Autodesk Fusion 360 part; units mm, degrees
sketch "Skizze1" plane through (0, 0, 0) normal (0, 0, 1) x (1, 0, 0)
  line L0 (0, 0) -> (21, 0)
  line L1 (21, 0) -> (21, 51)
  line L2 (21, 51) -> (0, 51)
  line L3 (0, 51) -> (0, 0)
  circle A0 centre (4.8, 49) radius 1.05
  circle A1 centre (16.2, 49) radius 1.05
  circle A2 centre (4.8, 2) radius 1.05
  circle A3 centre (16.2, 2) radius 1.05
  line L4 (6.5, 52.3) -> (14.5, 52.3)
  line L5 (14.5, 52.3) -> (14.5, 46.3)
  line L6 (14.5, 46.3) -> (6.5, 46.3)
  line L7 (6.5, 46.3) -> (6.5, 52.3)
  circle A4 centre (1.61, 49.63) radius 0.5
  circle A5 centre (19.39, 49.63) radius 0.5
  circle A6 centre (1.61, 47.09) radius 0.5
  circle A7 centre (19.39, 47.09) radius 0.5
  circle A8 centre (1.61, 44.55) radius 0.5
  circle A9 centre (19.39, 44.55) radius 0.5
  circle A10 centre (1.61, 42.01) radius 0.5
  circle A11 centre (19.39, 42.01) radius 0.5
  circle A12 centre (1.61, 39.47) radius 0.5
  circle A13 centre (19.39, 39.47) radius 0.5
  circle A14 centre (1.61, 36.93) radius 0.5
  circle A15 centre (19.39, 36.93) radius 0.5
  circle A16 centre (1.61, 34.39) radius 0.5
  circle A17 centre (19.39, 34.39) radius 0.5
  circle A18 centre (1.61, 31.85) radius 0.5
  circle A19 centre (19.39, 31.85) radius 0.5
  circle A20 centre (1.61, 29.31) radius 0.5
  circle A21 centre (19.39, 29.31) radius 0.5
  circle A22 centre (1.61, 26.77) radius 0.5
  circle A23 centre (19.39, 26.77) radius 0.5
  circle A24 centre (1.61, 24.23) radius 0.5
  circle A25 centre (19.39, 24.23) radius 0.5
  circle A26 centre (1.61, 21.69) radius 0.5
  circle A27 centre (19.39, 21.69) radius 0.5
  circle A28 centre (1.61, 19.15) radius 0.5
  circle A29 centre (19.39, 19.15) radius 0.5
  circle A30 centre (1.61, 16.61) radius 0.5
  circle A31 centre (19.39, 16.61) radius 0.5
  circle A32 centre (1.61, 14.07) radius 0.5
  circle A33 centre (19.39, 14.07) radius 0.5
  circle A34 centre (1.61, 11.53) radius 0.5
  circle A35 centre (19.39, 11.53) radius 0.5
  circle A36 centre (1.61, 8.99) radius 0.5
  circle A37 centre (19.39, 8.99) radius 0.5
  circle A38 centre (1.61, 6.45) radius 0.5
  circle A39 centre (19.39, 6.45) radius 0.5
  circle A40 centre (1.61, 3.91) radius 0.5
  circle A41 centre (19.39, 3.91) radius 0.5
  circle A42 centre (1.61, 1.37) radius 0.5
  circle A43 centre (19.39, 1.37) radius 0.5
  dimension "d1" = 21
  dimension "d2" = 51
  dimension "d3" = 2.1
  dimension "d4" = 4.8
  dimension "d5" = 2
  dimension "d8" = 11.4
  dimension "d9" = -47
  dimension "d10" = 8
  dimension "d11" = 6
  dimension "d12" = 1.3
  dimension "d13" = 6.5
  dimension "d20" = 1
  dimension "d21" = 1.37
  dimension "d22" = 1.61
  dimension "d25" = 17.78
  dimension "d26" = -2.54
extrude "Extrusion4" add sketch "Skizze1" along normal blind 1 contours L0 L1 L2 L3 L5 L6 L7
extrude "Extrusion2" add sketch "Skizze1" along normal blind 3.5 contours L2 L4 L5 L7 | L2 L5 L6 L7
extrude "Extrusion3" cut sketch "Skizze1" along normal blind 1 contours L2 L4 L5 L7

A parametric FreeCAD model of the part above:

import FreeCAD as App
import Part
import Sketcher
from FreeCAD import Vector
Q = App.Units.Quantity

doc = App.newDocument("Part")
body = doc.addObject("PartDesign::Body", "Body")

# Sketch on XY plane
sketch1 = body.newObject("Sketcher::SketchObject", "Sketch")
sketch1.AttachmentSupport = (doc.getObject("XY_Plane"), [""])
sketch1.MapMode = "FlatFace"
sketch1.addGeometry(Part.LineSegment(Vector(0, 51, 0), Vector(0, 0, 0)), False)
sketch1.addGeometry(Part.LineSegment(Vector(0, 0, 0), Vector(21, 0, 0)), False)
sketch1.addGeometry(Part.LineSegment(Vector(21, 0, 0), Vector(21, 51, 0)), False)
sketch1.addGeometry(Part.LineSegment(Vector(21, 51, 0), Vector(14.5, 51, 0)), False)
sketch1.addGeometry(Part.LineSegment(Vector(14.5, 51, 0), Vector(14.5, 46.3, 0)), False)
sketch1.addGeometry(Part.LineSegment(Vector(14.5, 46.3, 0), Vector(6.5, 46.3, 0)), False)
sketch1.addGeometry(Part.LineSegment(Vector(6.5, 46.3, 0), Vector(6.5, 51, 0)), False)
sketch1.addGeometry(Part.LineSegment(Vector(6.5, 51, 0), Vector(0, 51, 0)), False)
sketch1.addGeometry(Part.Circle(Vector(1.6, 1.4, 0), Vector(0, 0, 1), 0.5), False)
sketch1.addGeometry(Part.Circle(Vector(1.6, 3.9, 0), Vector(0, 0, 1), 0.5), False)
sketch1.addGeometry(Part.Circle(Vector(1.6, 6.5, 0), Vector(0, 0, 1), 0.5), False)
sketch1.addGeometry(Part.Circle(Vector(4.8, 2, 0), Vector(0, 0, 1), 1.1), False)
sketch1.addGeometry(Part.Circle(Vector(1.6, 9, 0), Vector(0, 0, 1), 0.5), False)
sketch1.addGeometry(Part.Circle(Vector(1.6, 11.5, 0), Vector(0, 0, 1), 0.5), False)
sketch1.addGeometry(Part.Circle(Vector(1.6, 14.1, 0), Vector(0, 0, 1), 0.5), False)
sketch1.addGeometry(Part.Circle(Vector(1.6, 16.6, 0), Vector(0, 0, 1), 0.5), False)
sketch1.addGeometry(Part.Circle(Vector(1.6, 19.1, 0), Vector(0, 0, 1), 0.5), False)
sketch1.addGeometry(Part.Circle(Vector(1.6, 21.7, 0), Vector(0, 0, 1), 0.5), False)
sketch1.addGeometry(Part.Circle(Vector(1.6, 24.2, 0), Vector(0, 0, 1), 0.5), False)
sketch1.addGeometry(Part.Circle(Vector(16.2, 2, 0), Vector(0, 0, 1), 1.1), False)
sketch1.addGeometry(Part.Circle(Vector(19.4, 1.4, 0), Vector(0, 0, 1), 0.5), False)
sketch1.addGeometry(Part.Circle(Vector(19.4, 3.9, 0), Vector(0, 0, 1), 0.5), False)
sketch1.addGeometry(Part.Circle(Vector(19.4, 6.5, 0), Vector(0, 0, 1), 0.5), False)
sketch1.addGeometry(Part.Circle(Vector(19.4, 9, 0), Vector(0, 0, 1), 0.5), False)
sketch1.addGeometry(Part.Circle(Vector(19.4, 11.5, 0), Vector(0, 0, 1), 0.5), False)
sketch1.addGeometry(Part.Circle(Vector(19.4, 14.1, 0), Vector(0, 0, 1), 0.5), False)
sketch1.addGeometry(Part.Circle(Vector(19.4, 16.6, 0), Vector(0, 0, 1), 0.5), False)
sketch1.addGeometry(Part.Circle(Vector(19.4, 19.1, 0), Vector(0, 0, 1), 0.5), False)
sketch1.addGeometry(Part.Circle(Vector(19.4, 21.7, 0), Vector(0, 0, 1), 0.5), False)
sketch1.addGeometry(Part.Circle(Vector(19.4, 24.2, 0), Vector(0, 0, 1), 0.5), False)
sketch1.addGeometry(Part.Circle(Vector(1.6, 26.8, 0), Vector(0, 0, 1), 0.5), False)
sketch1.addGeometry(Part.Circle(Vector(1.6, 29.3, 0), Vector(0, 0, 1), 0.5), False)
sketch1.addGeometry(Part.Circle(Vector(1.6, 31.9, 0), Vector(0, 0, 1), 0.5), False)
sketch1.addGeometry(Part.Circle(Vector(1.6, 34.4, 0), Vector(0, 0, 1), 0.5), False)
sketch1.addGeometry(Part.Circle(Vector(1.6, 36.9, 0), Vector(0, 0, 1), 0.5), False)
sketch1.addGeometry(Part.Circle(Vector(1.6, 39.5, 0), Vector(0, 0, 1), 0.5), False)
sketch1.addGeometry(Part.Circle(Vector(1.6, 42, 0), Vector(0, 0, 1), 0.5), False)
sketch1.addGeometry(Part.Circle(Vector(1.6, 44.5, 0), Vector(0, 0, 1), 0.5), False)
sketch1.addGeometry(Part.Circle(Vector(1.6, 47.1, 0), Vector(0, 0, 1), 0.5), False)
sketch1.addGeometry(Part.Circle(Vector(1.6, 49.6, 0), Vector(0, 0, 1), 0.5), False)
sketch1.addGeometry(Part.Circle(Vector(4.8, 49, 0), Vector(0, 0, 1), 1.1), False)
sketch1.addGeometry(Part.Circle(Vector(19.4, 26.8, 0), Vector(0, 0, 1), 0.5), False)
sketch1.addGeometry(Part.Circle(Vector(19.4, 29.3, 0), Vector(0, 0, 1), 0.5), False)
sketch1.addGeometry(Part.Circle(Vector(19.4, 31.9, 0), Vector(0, 0, 1), 0.5), False)
sketch1.addGeometry(Part.Circle(Vector(19.4, 34.4, 0), Vector(0, 0, 1), 0.5), False)
sketch1.addGeometry(Part.Circle(Vector(19.4, 36.9, 0), Vector(0, 0, 1), 0.5), False)
sketch1.addGeometry(Part.Circle(Vector(19.4, 39.5, 0), Vector(0, 0, 1), 0.5), False)
sketch1.addGeometry(Part.Circle(Vector(19.4, 42, 0), Vector(0, 0, 1), 0.5), False)
sketch1.addGeometry(Part.Circle(Vector(19.4, 44.5, 0), Vector(0, 0, 1), 0.5), False)
sketch1.addGeometry(Part.Circle(Vector(16.2, 49, 0), Vector(0, 0, 1), 1.1), False)
sketch1.addGeometry(Part.Circle(Vector(19.4, 47.1, 0), Vector(0, 0, 1), 0.5), False)
sketch1.addGeometry(Part.Circle(Vector(19.4, 49.6, 0), Vector(0, 0, 1), 0.5), False)
sketch1.addConstraint(Sketcher.Constraint("Coincident", 0, 2, 1, 1))
sketch1.addConstraint(Sketcher.Constraint("Coincident", 1, 2, 2, 1))
sketch1.addConstraint(Sketcher.Constraint("Coincident", 2, 2, 3, 1))
sketch1.addConstraint(Sketcher.Constraint("Coincident", 3, 2, 4, 1))
sketch1.addConstraint(Sketcher.Constraint("Coincident", 4, 2, 5, 1))
sketch1.addConstraint(Sketcher.Constraint("Coincident", 5, 2, 6, 1))
sketch1.addConstraint(Sketcher.Constraint("Coincident", 6, 2, 7, 1))
sketch1.addConstraint(Sketcher.Constraint("Coincident", 7, 2, 0, 1))
sketch1.addConstraint(Sketcher.Constraint("Vertical", 0))
sketch1.addConstraint(Sketcher.Constraint("Horizontal", 1))
sketch1.addConstraint(Sketcher.Constraint("Vertical", 2))
sketch1.addConstraint(Sketcher.Constraint("Horizontal", 3))
sketch1.addConstraint(Sketcher.Constraint("Vertical", 4))
sketch1.addConstraint(Sketcher.Constraint("Horizontal", 5))
sketch1.addConstraint(Sketcher.Constraint("Vertical", 6))
sketch1.addConstraint(Sketcher.Constraint("Horizontal", 7))
sketch1.addConstraint(Sketcher.Constraint("Coincident", 0, 2, -1, 1))
sketch1.addConstraint(Sketcher.Constraint("Equal", 8, 9))
sketch1.addConstraint(Sketcher.Constraint("Equal", 9, 10))
sketch1.addConstraint(Sketcher.Constraint("Equal", 10, 12))
sketch1.addConstraint(Sketcher.Constraint("Equal", 12, 13))
sketch1.addConstraint(Sketcher.Constraint("Equal", 13, 14))
sketch1.addConstraint(Sketcher.Constraint("Equal", 14, 15))
sketch1.addConstraint(Sketcher.Constraint("Equal", 15, 16))
sketch1.addConstraint(Sketcher.Constraint("Equal", 16, 17))
sketch1.addConstraint(Sketcher.Constraint("Equal", 17, 18))
sketch1.addConstraint(Sketcher.Constraint("Equal", 11, 19))
sketch1.addConstraint(Sketcher.Constraint("Equal", 18, 20))
sketch1.addConstraint(Sketcher.Constraint("Equal", 20, 21))
sketch1.addConstraint(Sketcher.Constraint("Equal", 21, 22))
sketch1.addConstraint(Sketcher.Constraint("Equal", 22, 23))
sketch1.addConstraint(Sketcher.Constraint("Equal", 23, 24))
sketch1.addConstraint(Sketcher.Constraint("Equal", 24, 25))
sketch1.addConstraint(Sketcher.Constraint("Equal", 25, 26))
sketch1.addConstraint(Sketcher.Constraint("Equal", 26, 27))
sketch1.addConstraint(Sketcher.Constraint("Equal", 27, 28))
sketch1.addConstraint(Sketcher.Constraint("Equal", 28, 29))
sketch1.addConstraint(Sketcher.Constraint("Equal", 29, 30))
sketch1.addConstraint(Sketcher.Constraint("Equal", 30, 31))
sketch1.addConstraint(Sketcher.Constraint("Equal", 31, 32))
sketch1.addConstraint(Sketcher.Constraint("Equal", 32, 33))
sketch1.addConstraint(Sketcher.Constraint("Equal", 33, 34))
sketch1.addConstraint(Sketcher.Constraint("Equal", 34, 35))
sketch1.addConstraint(Sketcher.Constraint("Equal", 35, 36))
sketch1.addConstraint(Sketcher.Constraint("Equal", 36, 37))
sketch1.addConstraint(Sketcher.Constraint("Equal", 37, 38))
sketch1.addConstraint(Sketcher.Constraint("Equal", 38, 39))
sketch1.addConstraint(Sketcher.Constraint("Equal", 19, 40))
sketch1.addConstraint(Sketcher.Constraint("Equal", 39, 41))
sketch1.addConstraint(Sketcher.Constraint("Equal", 41, 42))
sketch1.addConstraint(Sketcher.Constraint("Equal", 42, 43))
sketch1.addConstraint(Sketcher.Constraint("Equal", 43, 44))
sketch1.addConstraint(Sketcher.Constraint("Equal", 44, 45))
sketch1.addConstraint(Sketcher.Constraint("Equal", 45, 46))
sketch1.addConstraint(Sketcher.Constraint("Equal", 46, 47))
sketch1.addConstraint(Sketcher.Constraint("Equal", 47, 48))
sketch1.addConstraint(Sketcher.Constraint("Equal", 40, 49))
sketch1.addConstraint(Sketcher.Constraint("Equal", 48, 50))
sketch1.addConstraint(Sketcher.Constraint("Equal", 50, 51))
sketch1.addConstraint(Sketcher.Constraint("Horizontal", 11, 3, 19, 3))
sketch1.addConstraint(Sketcher.Constraint("Horizontal", 8, 3, 20, 3))
sketch1.addConstraint(Sketcher.Constraint("Horizontal", 9, 3, 21, 3))
sketch1.addConstraint(Sketcher.Constraint("Horizontal", 10, 3, 22, 3))
sketch1.addConstraint(Sketcher.Constraint("Horizontal", 12, 3, 23, 3))
sketch1.addConstraint(Sketcher.Constraint("Horizontal", 13, 3, 24, 3))
sketch1.addConstraint(Sketcher.Constraint("Horizontal", 14, 3, 25, 3))
sketch1.addConstraint(Sketcher.Constraint("Horizontal", 15, 3, 26, 3))
sketch1.addConstraint(Sketcher.Constraint("Horizontal", 16, 3, 27, 3))
sketch1.addConstraint(Sketcher.Constraint("Horizontal", 17, 3, 28, 3))
sketch1.addConstraint(Sketcher.Constraint("Horizontal", 18, 3, 29, 3))
sketch1.addConstraint(Sketcher.Constraint("Horizontal", 30, 3, 41, 3))
sketch1.addConstraint(Sketcher.Constraint("Horizontal", 31, 3, 42, 3))
sketch1.addConstraint(Sketcher.Constraint("Horizontal", 32, 3, 43, 3))
sketch1.addConstraint(Sketcher.Constraint("Horizontal", 33, 3, 44, 3))
sketch1.addConstraint(Sketcher.Constraint("Horizontal", 34, 3, 45, 3))
sketch1.addConstraint(Sketcher.Constraint("Horizontal", 35, 3, 46, 3))
sketch1.addConstraint(Sketcher.Constraint("Horizontal", 36, 3, 47, 3))
sketch1.addConstraint(Sketcher.Constraint("Horizontal", 37, 3, 48, 3))
sketch1.addConstraint(Sketcher.Constraint("Horizontal", 40, 3, 49, 3))
sketch1.addConstraint(Sketcher.Constraint("Horizontal", 38, 3, 50, 3))
sketch1.addConstraint(Sketcher.Constraint("Horizontal", 39, 3, 51, 3))
sketch1.addConstraint(Sketcher.Constraint("Horizontal", 3, 2, 6, 2))
sketch1.addConstraint(Sketcher.Constraint("Vertical", 8, 3, 9, 3))
sketch1.addConstraint(Sketcher.Constraint("Vertical", 9, 3, 10, 3))
sketch1.addConstraint(Sketcher.Constraint("Vertical", 10, 3, 12, 3))
sketch1.addConstraint(Sketcher.Constraint("Vertical", 12, 3, 13, 3))
sketch1.addConstraint(Sketcher.Constraint("Vertical", 13, 3, 14, 3))
sketch1.addConstraint(Sketcher.Constraint("Vertical", 14, 3, 15, 3))
sketch1.addConstraint(Sketcher.Constraint("Vertical", 15, 3, 16, 3))
sketch1.addConstraint(Sketcher.Constraint("Vertical", 16, 3, 17, 3))
sketch1.addConstraint(Sketcher.Constraint("Vertical", 17, 3, 18, 3))
sketch1.addConstraint(Sketcher.Constraint("Vertical", 20, 3, 21, 3))
sketch1.addConstraint(Sketcher.Constraint("Vertical", 21, 3, 22, 3))
sketch1.addConstraint(Sketcher.Constraint("Vertical", 22, 3, 23, 3))
sketch1.addConstraint(Sketcher.Constraint("Vertical", 23, 3, 24, 3))
sketch1.addConstraint(Sketcher.Constraint("Vertical", 24, 3, 25, 3))
sketch1.addConstraint(Sketcher.Constraint("Vertical", 25, 3, 26, 3))
sketch1.addConstraint(Sketcher.Constraint("Vertical", 26, 3, 27, 3))
sketch1.addConstraint(Sketcher.Constraint("Vertical", 27, 3, 28, 3))
sketch1.addConstraint(Sketcher.Constraint("Vertical", 28, 3, 29, 3))
sketch1.addConstraint(Sketcher.Constraint("Vertical", 18, 3, 30, 3))
sketch1.addConstraint(Sketcher.Constraint("Vertical", 30, 3, 31, 3))
sketch1.addConstraint(Sketcher.Constraint("Vertical", 31, 3, 32, 3))
sketch1.addConstraint(Sketcher.Constraint("Vertical", 32, 3, 33, 3))
sketch1.addConstraint(Sketcher.Constraint("Vertical", 33, 3, 34, 3))
sketch1.addConstraint(Sketcher.Constraint("Vertical", 34, 3, 35, 3))
sketch1.addConstraint(Sketcher.Constraint("Vertical", 35, 3, 36, 3))
sketch1.addConstraint(Sketcher.Constraint("Vertical", 36, 3, 37, 3))
sketch1.addConstraint(Sketcher.Constraint("Vertical", 37, 3, 38, 3))
sketch1.addConstraint(Sketcher.Constraint("Vertical", 38, 3, 39, 3))
sketch1.addConstraint(Sketcher.Constraint("Vertical", 11, 3, 40, 3))
sketch1.addConstraint(Sketcher.Constraint("Vertical", 29, 3, 41, 3))
sketch1.addConstraint(Sketcher.Constraint("Vertical", 41, 3, 42, 3))
sketch1.addConstraint(Sketcher.Constraint("Vertical", 42, 3, 43, 3))
sketch1.addConstraint(Sketcher.Constraint("Vertical", 43, 3, 44, 3))
sketch1.addConstraint(Sketcher.Constraint("Vertical", 44, 3, 45, 3))
sketch1.addConstraint(Sketcher.Constraint("Vertical", 45, 3, 46, 3))
sketch1.addConstraint(Sketcher.Constraint("Vertical", 46, 3, 47, 3))
sketch1.addConstraint(Sketcher.Constraint("Vertical", 47, 3, 48, 3))
sketch1.addConstraint(Sketcher.Constraint("Vertical", 19, 3, 49, 3))
sketch1.addConstraint(Sketcher.Constraint("Vertical", 48, 3, 50, 3))
sketch1.addConstraint(Sketcher.Constraint("Vertical", 50, 3, 51, 3))
sketch1.addConstraint(Sketcher.Constraint("Equal", 3, 7))
sketch1.addConstraint(Sketcher.Constraint("Diameter", 8, Q("1 mm")))
sketch1.addConstraint(Sketcher.Constraint("Diameter", 11, Q("2.1 mm")))
sketch1.addConstraint(Sketcher.Constraint("DistanceX", 1, 1, 1, 2, Q("21 mm")))
sketch1.addConstraint(Sketcher.Constraint("DistanceX", 5, 2, 5, 1, Q("8 mm")))
sketch1.addConstraint(Sketcher.Constraint("DistanceY", 0, 2, 0, 1, Q("51 mm")))
sketch1.addConstraint(Sketcher.Constraint("DistanceY", -1, 1, 11, 3, Q("2 mm")))
sketch1.addConstraint(Sketcher.Constraint("DistanceY", 49, 3, 2, 2, Q("2 mm")))
sketch1.addConstraint(Sketcher.Constraint("DistanceX", -1, 1, 11, 3, Q("4.8 mm")))
sketch1.addConstraint(Sketcher.Constraint("DistanceX", 11, 3, 19, 3, Q("11.4 mm")))
sketch1.addConstraint(Sketcher.Constraint("DistanceX", -1, 1, 8, 3, Q("1.61 mm")))
sketch1.addConstraint(Sketcher.Constraint("DistanceY", -1, 1, 8, 3, Q("1.37 mm")))
sketch1.addConstraint(Sketcher.Constraint("DistanceY", 8, 3, 9, 3, Q("2.54 mm")))
sketch1.addConstraint(Sketcher.Constraint("DistanceY", 9, 3, 10, 3, Q("2.54 mm")))
sketch1.addConstraint(Sketcher.Constraint("DistanceY", 10, 3, 12, 3, Q("2.54 mm")))
sketch1.addConstraint(Sketcher.Constraint("DistanceY", 12, 3, 13, 3, Q("2.54 mm")))
sketch1.addConstraint(Sketcher.Constraint("DistanceY", 13, 3, 14, 3, Q("2.54 mm")))
sketch1.addConstraint(Sketcher.Constraint("DistanceY", 14, 3, 15, 3, Q("2.54 mm")))
sketch1.addConstraint(Sketcher.Constraint("DistanceY", 15, 3, 16, 3, Q("2.54 mm")))
sketch1.addConstraint(Sketcher.Constraint("DistanceY", 16, 3, 17, 3, Q("2.54 mm")))
sketch1.addConstraint(Sketcher.Constraint("DistanceY", 17, 3, 18, 3, Q("2.54 mm")))
sketch1.addConstraint(Sketcher.Constraint("DistanceX", 8, 3, 20, 3, Q("17.78 mm")))
sketch1.addConstraint(Sketcher.Constraint("DistanceY", 18, 3, 30, 3, Q("2.54 mm")))
sketch1.addConstraint(Sketcher.Constraint("DistanceY", 30, 3, 31, 3, Q("2.54 mm")))
sketch1.addConstraint(Sketcher.Constraint("DistanceY", 31, 3, 32, 3, Q("2.54 mm")))
sketch1.addConstraint(Sketcher.Constraint("DistanceY", 32, 3, 33, 3, Q("2.54 mm")))
sketch1.addConstraint(Sketcher.Constraint("DistanceY", 33, 3, 34, 3, Q("2.54 mm")))
sketch1.addConstraint(Sketcher.Constraint("DistanceY", 34, 3, 35, 3, Q("2.54 mm")))
sketch1.addConstraint(Sketcher.Constraint("DistanceY", 35, 3, 36, 3, Q("2.54 mm")))
sketch1.addConstraint(Sketcher.Constraint("DistanceY", 36, 3, 37, 3, Q("2.54 mm")))
sketch1.addConstraint(Sketcher.Constraint("DistanceY", 37, 3, 38, 3, Q("2.54 mm")))
sketch1.addConstraint(Sketcher.Constraint("DistanceY", 38, 3, 39, 3, Q("2.54 mm")))
sketch1.addConstraint(Sketcher.Constraint("DistanceY", 4, 2, 4, 1, Q("4.7 mm")))
pad1 = body.newObject("PartDesign::Pad", "Pad")
pad1.Profile = sketch1
pad1.Length = 1

# Sketch on XY plane
sketch2 = body.newObject("Sketcher::SketchObject", "Sketch001")
sketch2.AttachmentSupport = (doc.getObject("XY_Plane"), [""])
sketch2.MapMode = "FlatFace"
sketch2.addGeometry(Part.LineSegment(Vector(6, 52, 0), Vector(6, 46, 0)), False)
sketch2.addGeometry(Part.LineSegment(Vector(6, 46, 0), Vector(14, 46, 0)), False)
sketch2.addGeometry(Part.LineSegment(Vector(14, 46, 0), Vector(14, 52, 0)), False)
sketch2.addGeometry(Part.LineSegment(Vector(14, 52, 0), Vector(6, 52, 0)), False)
sketch2.addConstraint(Sketcher.Constraint("Coincident", 0, 2, 1, 1))
sketch2.addConstraint(Sketcher.Constraint("Coincident", 1, 2, 2, 1))
sketch2.addConstraint(Sketcher.Constraint("Coincident", 2, 2, 3, 1))
sketch2.addConstraint(Sketcher.Constraint("Coincident", 3, 2, 0, 1))
sketch2.addConstraint(Sketcher.Constraint("Vertical", 0))
sketch2.addConstraint(Sketcher.Constraint("Horizontal", 1))
sketch2.addConstraint(Sketcher.Constraint("Vertical", 2))
sketch2.addConstraint(Sketcher.Constraint("Horizontal", 3))
sketch2.addConstraint(Sketcher.Constraint("DistanceX", 1, 1, 1, 2, Q("8 mm")))
sketch2.addConstraint(Sketcher.Constraint("DistanceY", 0, 2, 0, 1, Q("6 mm")))
sketch2.addConstraint(Sketcher.Constraint("DistanceX", -1, 1, 0, 2, Q("6.5 mm")))
sketch2.addConstraint(Sketcher.Constraint("DistanceY", -1, 1, 0, 2, Q("46.3 mm")))
pad2 = body.newObject("PartDesign::Pad", "Pad001")
pad2.Profile = sketch2
pad2.Length = 3.5

# Sketch on XY plane
sketch3 = body.newObject("Sketcher::SketchObject", "Sketch002")
sketch3.AttachmentSupport = (doc.getObject("XY_Plane"), [""])
sketch3.MapMode = "FlatFace"
sketch3.addGeometry(Part.LineSegment(Vector(6.5, 52.3, 0), Vector(6.5, 51, 0)), False)
sketch3.addGeometry(Part.LineSegment(Vector(6.5, 51, 0), Vector(14.5, 51, 0)), False)
sketch3.addGeometry(Part.LineSegment(Vector(14.5, 51, 0), Vector(14.5, 52.3, 0)), False)
sketch3.addGeometry(Part.LineSegment(Vector(14.5, 52.3, 0), Vector(6.5, 52.3, 0)), False)
sketch3.addConstraint(Sketcher.Constraint("Coincident", 0, 2, 1, 1))
sketch3.addConstraint(Sketcher.Constraint("Coincident", 1, 2, 2, 1))
sketch3.addConstraint(Sketcher.Constraint("Coincident", 2, 2, 3, 1))
sketch3.addConstraint(Sketcher.Constraint("Coincident", 3, 2, 0, 1))
sketch3.addConstraint(Sketcher.Constraint("Vertical", 0))
sketch3.addConstraint(Sketcher.Constraint("Horizontal", 1))
sketch3.addConstraint(Sketcher.Constraint("Vertical", 2))
sketch3.addConstraint(Sketcher.Constraint("Horizontal", 3))
sketch3.addConstraint(Sketcher.Constraint("DistanceX", 1, 1, 1, 2, Q("8 mm")))
sketch3.addConstraint(Sketcher.Constraint("DistanceY", 0, 2, 0, 1, Q("1.3 mm")))
sketch3.addConstraint(Sketcher.Constraint("DistanceY", -1, 1, 0, 2, Q("51 mm")))
sketch3.addConstraint(Sketcher.Constraint("DistanceX", -1, 1, 0, 2, Q("6.5 mm")))
pocket1 = body.newObject("PartDesign::Pocket", "Pocket")
pocket1.Profile = sketch3
pocket1.Length = 1
pocket1.Reversed = True

doc.recompute()
